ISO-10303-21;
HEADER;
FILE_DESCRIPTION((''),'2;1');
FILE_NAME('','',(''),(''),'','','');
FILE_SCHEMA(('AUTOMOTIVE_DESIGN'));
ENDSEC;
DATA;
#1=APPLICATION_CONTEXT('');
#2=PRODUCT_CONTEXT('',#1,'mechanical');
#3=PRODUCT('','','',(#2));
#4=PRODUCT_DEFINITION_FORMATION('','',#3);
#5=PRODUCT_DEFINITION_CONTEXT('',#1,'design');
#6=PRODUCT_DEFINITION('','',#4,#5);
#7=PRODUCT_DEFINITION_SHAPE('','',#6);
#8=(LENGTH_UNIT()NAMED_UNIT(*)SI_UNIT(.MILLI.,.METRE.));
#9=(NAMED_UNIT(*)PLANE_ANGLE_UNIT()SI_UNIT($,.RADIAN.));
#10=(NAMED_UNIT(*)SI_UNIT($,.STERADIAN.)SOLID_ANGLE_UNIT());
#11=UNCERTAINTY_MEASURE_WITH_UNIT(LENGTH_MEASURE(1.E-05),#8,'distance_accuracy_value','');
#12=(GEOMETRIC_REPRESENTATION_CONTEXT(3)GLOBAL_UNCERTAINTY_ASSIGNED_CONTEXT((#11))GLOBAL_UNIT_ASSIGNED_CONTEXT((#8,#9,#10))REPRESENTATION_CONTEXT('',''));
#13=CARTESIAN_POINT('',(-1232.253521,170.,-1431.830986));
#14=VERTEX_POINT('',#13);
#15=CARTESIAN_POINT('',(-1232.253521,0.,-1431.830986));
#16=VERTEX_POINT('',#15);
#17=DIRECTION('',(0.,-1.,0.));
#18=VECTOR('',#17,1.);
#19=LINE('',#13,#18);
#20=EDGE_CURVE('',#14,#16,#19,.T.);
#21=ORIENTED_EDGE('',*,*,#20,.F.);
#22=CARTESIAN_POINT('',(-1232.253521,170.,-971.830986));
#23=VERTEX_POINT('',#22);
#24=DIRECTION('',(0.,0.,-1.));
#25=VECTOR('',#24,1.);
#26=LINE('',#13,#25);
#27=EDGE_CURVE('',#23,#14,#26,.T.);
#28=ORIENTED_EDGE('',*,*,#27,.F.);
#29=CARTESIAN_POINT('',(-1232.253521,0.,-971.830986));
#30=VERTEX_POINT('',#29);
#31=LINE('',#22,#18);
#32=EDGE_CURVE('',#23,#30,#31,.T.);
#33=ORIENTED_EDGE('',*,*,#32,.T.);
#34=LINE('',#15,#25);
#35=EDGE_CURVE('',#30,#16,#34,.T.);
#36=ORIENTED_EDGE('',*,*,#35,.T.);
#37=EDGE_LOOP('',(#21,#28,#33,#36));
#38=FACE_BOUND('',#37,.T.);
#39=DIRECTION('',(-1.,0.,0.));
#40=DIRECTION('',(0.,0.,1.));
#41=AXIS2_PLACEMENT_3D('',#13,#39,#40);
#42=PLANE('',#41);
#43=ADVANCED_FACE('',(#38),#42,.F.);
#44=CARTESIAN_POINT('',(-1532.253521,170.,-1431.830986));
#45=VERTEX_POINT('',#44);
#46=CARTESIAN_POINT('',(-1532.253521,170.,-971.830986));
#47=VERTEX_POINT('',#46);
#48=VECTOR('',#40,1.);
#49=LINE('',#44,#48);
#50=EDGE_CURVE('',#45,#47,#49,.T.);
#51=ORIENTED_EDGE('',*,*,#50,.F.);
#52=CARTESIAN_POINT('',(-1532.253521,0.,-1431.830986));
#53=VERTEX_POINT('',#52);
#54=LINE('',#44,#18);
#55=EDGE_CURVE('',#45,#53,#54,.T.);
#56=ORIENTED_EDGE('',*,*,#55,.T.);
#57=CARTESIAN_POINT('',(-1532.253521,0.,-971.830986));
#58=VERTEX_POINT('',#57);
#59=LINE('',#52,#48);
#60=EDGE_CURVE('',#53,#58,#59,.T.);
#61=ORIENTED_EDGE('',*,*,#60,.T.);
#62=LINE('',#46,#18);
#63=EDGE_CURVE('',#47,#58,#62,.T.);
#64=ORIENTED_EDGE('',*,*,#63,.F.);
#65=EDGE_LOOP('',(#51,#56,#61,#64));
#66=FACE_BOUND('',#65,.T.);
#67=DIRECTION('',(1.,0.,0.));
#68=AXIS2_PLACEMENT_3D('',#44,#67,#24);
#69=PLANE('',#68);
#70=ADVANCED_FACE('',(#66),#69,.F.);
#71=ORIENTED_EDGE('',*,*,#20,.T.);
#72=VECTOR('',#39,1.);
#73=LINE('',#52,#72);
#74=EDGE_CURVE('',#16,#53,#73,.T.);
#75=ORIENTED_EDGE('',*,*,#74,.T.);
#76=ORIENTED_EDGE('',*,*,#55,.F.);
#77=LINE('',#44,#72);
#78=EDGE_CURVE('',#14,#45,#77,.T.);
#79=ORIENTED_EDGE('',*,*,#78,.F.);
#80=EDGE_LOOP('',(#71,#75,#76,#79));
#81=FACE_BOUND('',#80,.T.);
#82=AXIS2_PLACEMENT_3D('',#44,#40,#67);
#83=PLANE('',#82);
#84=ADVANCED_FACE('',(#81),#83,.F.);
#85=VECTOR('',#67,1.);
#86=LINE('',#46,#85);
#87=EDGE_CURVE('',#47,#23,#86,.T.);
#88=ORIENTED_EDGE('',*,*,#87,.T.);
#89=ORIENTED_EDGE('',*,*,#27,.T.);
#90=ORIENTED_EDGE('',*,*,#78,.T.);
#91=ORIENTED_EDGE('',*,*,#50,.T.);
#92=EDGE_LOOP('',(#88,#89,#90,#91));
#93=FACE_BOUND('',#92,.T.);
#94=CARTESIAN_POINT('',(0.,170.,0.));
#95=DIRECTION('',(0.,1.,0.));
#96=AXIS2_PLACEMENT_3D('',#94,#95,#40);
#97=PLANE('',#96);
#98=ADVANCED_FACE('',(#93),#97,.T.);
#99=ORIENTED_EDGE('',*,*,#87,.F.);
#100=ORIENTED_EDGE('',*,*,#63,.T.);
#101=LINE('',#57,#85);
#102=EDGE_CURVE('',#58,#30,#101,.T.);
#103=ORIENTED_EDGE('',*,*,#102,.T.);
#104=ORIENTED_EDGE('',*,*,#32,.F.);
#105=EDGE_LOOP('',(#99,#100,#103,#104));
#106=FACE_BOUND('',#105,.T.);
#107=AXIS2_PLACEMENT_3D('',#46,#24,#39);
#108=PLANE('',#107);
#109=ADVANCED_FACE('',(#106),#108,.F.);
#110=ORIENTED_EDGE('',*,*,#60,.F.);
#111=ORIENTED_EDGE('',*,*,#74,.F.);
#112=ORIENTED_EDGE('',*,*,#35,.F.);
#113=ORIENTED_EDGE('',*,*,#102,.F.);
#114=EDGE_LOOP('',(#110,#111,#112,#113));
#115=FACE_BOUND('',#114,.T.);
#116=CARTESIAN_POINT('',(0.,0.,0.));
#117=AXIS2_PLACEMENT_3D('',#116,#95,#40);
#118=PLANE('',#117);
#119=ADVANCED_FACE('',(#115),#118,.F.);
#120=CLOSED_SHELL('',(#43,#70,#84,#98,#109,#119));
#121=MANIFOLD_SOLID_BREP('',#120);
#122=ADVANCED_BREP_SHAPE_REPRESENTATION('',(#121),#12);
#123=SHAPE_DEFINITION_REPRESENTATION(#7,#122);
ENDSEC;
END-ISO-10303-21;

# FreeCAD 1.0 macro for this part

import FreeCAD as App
import Part
import Sketcher

V = App.Vector

doc = App.newDocument("Part")
params = doc.addObject("Spreadsheet::Sheet", "Params")
for row, (alias, value) in enumerate([
    ("sketch1_width", "300 mm"),
    ("sketch1_height", "460 mm"),
    ("pad1_length", "170 mm"),
], start=1):
    params.set(f"A{row}", alias)
    params.set(f"B{row}", "=" + value)
    params.setAlias(f"B{row}", alias)

body = doc.addObject("PartDesign::Body", "Body")

# Sketch on XZ plane
sketch1 = doc.addObject("Sketcher::SketchObject", "Sketch")
body.addObject(sketch1)
sketch1.AttachmentSupport = (doc.XZ_Plane, [""])
sketch1.MapMode = "FlatFace"
sketch1.addGeometry([
    Part.LineSegment(V(-1532, -1432, 0), V(-1532, -972, 0)),
    Part.LineSegment(V(-1532, -972, 0), V(-1232, -972, 0)),
    Part.LineSegment(V(-1232, -972, 0), V(-1232, -1432, 0)),
    Part.LineSegment(V(-1232, -1432, 0), V(-1532, -1432, 0)),
], False)
sketch1.addConstraint([
    Sketcher.Constraint("Coincident", 0, 2, 1, 1),
    Sketcher.Constraint("Coincident", 1, 2, 2, 1),
    Sketcher.Constraint("Coincident", 2, 2, 3, 1),
    Sketcher.Constraint("Coincident", 3, 2, 0, 1),
    Sketcher.Constraint("Vertical", 0),
    Sketcher.Constraint("Horizontal", 1),
    Sketcher.Constraint("Vertical", 2),
    Sketcher.Constraint("Horizontal", 3),
    Sketcher.Constraint("DistanceX", 1, 1, 1, 2, 300.0),
    Sketcher.Constraint("DistanceY", 0, 1, 0, 2, 460.0),
    Sketcher.Constraint("DistanceX", 0, 2, -1, 1, 1532.253521),
    Sketcher.Constraint("DistanceY", 0, 2, -1, 1, 971.830986),
])
sketch1.setExpression("Constraints[8]", "Params.sketch1_width")
sketch1.setExpression("Constraints[9]", "Params.sketch1_height")
pad1 = doc.addObject("PartDesign::Pad", "Pad")
body.addObject(pad1)
pad1.Profile = sketch1
pad1.setExpression("Length", "Params.pad1_length")
pad1.Reversed = True

doc.recompute()
